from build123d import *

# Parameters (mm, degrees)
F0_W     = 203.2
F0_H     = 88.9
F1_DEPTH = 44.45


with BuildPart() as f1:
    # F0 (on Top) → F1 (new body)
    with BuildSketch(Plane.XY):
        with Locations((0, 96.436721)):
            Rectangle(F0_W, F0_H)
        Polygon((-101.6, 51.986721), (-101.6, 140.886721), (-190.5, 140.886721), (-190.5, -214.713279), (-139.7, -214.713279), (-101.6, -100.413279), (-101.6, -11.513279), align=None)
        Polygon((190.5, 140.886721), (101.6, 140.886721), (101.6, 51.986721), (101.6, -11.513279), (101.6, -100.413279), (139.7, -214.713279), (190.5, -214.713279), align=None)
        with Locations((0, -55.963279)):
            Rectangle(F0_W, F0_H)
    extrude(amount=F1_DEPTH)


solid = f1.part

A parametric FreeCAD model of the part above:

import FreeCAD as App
import Part
import Sketcher

V = App.Vector
Q = App.Units.Quantity

doc = App.newDocument("Part")
body = doc.addObject("PartDesign::Body", "Body")

sketch1 = body.newObject("Sketcher::SketchObject", "Sketch")
sketch1.AttachmentSupport = (doc.getObject("XY_Plane"), [""])
sketch1.MapMode = "FlatFace"
sketch1.addGeometry(Part.LineSegment(V(102, -100, 0), V(140, -215, 0)), False)
sketch1.addGeometry(Part.LineSegment(V(140, -215, 0), V(190, -215, 0)), False)
sketch1.addGeometry(Part.LineSegment(V(190, -215, 0), V(190, 141, 0)), False)
sketch1.addGeometry(Part.LineSegment(V(190, 141, 0), V(-190, 141, 0)), False)
sketch1.addGeometry(Part.LineSegment(V(-190, 141, 0), V(-190, -215, 0)), False)
sketch1.addGeometry(Part.LineSegment(V(-190, -215, 0), V(-140, -215, 0)), False)
sketch1.addGeometry(Part.LineSegment(V(-140, -215, 0), V(-102, -100, 0)), False)
sketch1.addGeometry(Part.LineSegment(V(-102, -100, 0), V(102, -100, 0)), False)
sketch1.addGeometry(Part.LineSegment(V(-102, 52, 0), V(102, 52, 0)), False)
sketch1.addGeometry(Part.LineSegment(V(102, 52, 0), V(102, -12, 0)), False)
sketch1.addGeometry(Part.LineSegment(V(102, -12, 0), V(-102, -12, 0)), False)
sketch1.addGeometry(Part.LineSegment(V(-102, -12, 0), V(-102, 52, 0)), False)
sketch1.addConstraint(Sketcher.Constraint("Coincident", 0, 2, 1, 1))
sketch1.addConstraint(Sketcher.Constraint("Coincident", 1, 2, 2, 1))
sketch1.addConstraint(Sketcher.Constraint("Coincident", 2, 2, 3, 1))
sketch1.addConstraint(Sketcher.Constraint("Coincident", 3, 2, 4, 1))
sketch1.addConstraint(Sketcher.Constraint("Coincident", 4, 2, 5, 1))
sketch1.addConstraint(Sketcher.Constraint("Coincident", 5, 2, 6, 1))
sketch1.addConstraint(Sketcher.Constraint("Coincident", 6, 2, 7, 1))
sketch1.addConstraint(Sketcher.Constraint("Coincident", 7, 2, 0, 1))
sketch1.addConstraint(Sketcher.Constraint("Coincident", 8, 2, 9, 1))
sketch1.addConstraint(Sketcher.Constraint("Coincident", 9, 2, 10, 1))
sketch1.addConstraint(Sketcher.Constraint("Coincident", 10, 2, 11, 1))
sketch1.addConstraint(Sketcher.Constraint("Coincident", 11, 2, 8, 1))
sketch1.addConstraint(Sketcher.Constraint("Horizontal", 1))
sketch1.addConstraint(Sketcher.Constraint("Vertical", 2))
sketch1.addConstraint(Sketcher.Constraint("Horizontal", 3))
sketch1.addConstraint(Sketcher.Constraint("Vertical", 4))
sketch1.addConstraint(Sketcher.Constraint("Horizontal", 5))
sketch1.addConstraint(Sketcher.Constraint("Horizontal", 7))
sketch1.addConstraint(Sketcher.Constraint("Horizontal", 8))
sketch1.addConstraint(Sketcher.Constraint("Vertical", 9))
sketch1.addConstraint(Sketcher.Constraint("Horizontal", 10))
sketch1.addConstraint(Sketcher.Constraint("Vertical", 11))
sketch1.addConstraint(Sketcher.Constraint("Symmetric", 1, 2, 4, 2, -2))
sketch1.addConstraint(Sketcher.Constraint("Vertical", 7, 2, 8, 2))
sketch1.addConstraint(Sketcher.Constraint("Vertical", 6, 2, 10, 2))
sketch1.addConstraint(Sketcher.Constraint("Equal", 1, 5))
sketch1.addConstraint(Sketcher.Constraint("Equal", 0, 6))
sketch1.addConstraint(Sketcher.Constraint("DistanceX", 1, 1, 1, 2, Q("2 in")))
sketch1.addConstraint(Sketcher.Constraint("DistanceX", 3, 2, 3, 1, Q("15 in")))
sketch1.addConstraint(Sketcher.Constraint("DistanceX", 7, 1, 7, 2, Q("8 in")))
sketch1.addConstraint(Sketcher.Constraint("DistanceY", 2, 1, 2, 2, Q("14 in")))
sketch1.addConstraint(Sketcher.Constraint("DistanceY", 9, 2, 9, 1, Q("2.5 in")))
sketch1.addConstraint(Sketcher.Constraint("DistanceY", 7, 2, 8, 2, Q("6 in")))
sketch1.addConstraint(Sketcher.Constraint("DistanceY", 9, 2, 2, 2, Q("6 in")))
sketch1.addConstraint(Sketcher.Constraint("DistanceY", 0, 2, -1, 1, Q("214.713279 mm")))
pad1 = body.newObject("PartDesign::Pad", "Pad")
pad1.Profile = sketch1
pad1.Length = Q("1.75 in")

doc.recompute()
